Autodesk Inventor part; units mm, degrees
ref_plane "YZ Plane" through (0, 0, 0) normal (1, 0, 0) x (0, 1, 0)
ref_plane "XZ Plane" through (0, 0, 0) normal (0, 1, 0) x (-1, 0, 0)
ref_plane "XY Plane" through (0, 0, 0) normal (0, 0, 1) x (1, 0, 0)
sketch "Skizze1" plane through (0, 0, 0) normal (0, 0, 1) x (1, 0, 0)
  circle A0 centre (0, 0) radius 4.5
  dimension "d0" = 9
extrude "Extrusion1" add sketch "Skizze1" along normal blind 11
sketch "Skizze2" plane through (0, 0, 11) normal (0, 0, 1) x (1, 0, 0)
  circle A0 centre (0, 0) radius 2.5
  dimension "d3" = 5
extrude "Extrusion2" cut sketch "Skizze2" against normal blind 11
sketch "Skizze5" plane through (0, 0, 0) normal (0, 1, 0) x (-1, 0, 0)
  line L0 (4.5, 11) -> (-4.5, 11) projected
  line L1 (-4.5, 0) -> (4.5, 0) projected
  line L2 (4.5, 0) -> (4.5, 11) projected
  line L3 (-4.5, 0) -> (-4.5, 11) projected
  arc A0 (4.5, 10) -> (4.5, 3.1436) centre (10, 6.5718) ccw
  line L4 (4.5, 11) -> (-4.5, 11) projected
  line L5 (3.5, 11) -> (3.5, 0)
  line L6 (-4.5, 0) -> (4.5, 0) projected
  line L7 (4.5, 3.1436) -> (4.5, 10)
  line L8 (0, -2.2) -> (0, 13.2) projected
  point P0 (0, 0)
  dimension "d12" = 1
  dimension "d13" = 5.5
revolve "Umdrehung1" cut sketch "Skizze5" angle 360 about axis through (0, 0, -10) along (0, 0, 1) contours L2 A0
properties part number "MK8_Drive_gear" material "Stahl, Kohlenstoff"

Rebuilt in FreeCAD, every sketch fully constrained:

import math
import FreeCAD as App
import Part
import Sketcher
Q = App.Units.Quantity

doc = App.newDocument("Part")
body = doc.addObject("PartDesign::Body", "Body")

# Sketch on XY plane
sketch1 = body.newObject("Sketcher::SketchObject", "Sketch")
sketch1.AttachmentSupport = (doc.getObject("XY_Plane"), [""])
sketch1.MapMode = "FlatFace"
sketch1.addGeometry(Part.Circle(App.Vector(0, 0, 0), App.Vector(0, 0, 1), 4.5), False)
sketch1.addConstraint([
    Sketcher.Constraint("Coincident", 0, 3, -1, 1),
    Sketcher.Constraint("Diameter", 0, Q("9 mm")),
])
pad1 = body.newObject("PartDesign::Pad", "Pad")
pad1.Profile = sketch1
pad1.Length = 11

# Sketch on XY plane
sketch2 = body.newObject("Sketcher::SketchObject", "Sketch001")
sketch2.AttachmentSupport = (doc.getObject("XY_Plane"), [""])
sketch2.MapMode = "FlatFace"
sketch2.AttachmentOffset = App.Placement(App.Vector(0, 0, 11), App.Rotation())
sketch2.addGeometry(Part.Circle(App.Vector(0, 0, 0), App.Vector(0, 0, 1), 2.5), False)
sketch2.addConstraint([
    Sketcher.Constraint("Coincident", 0, 3, -1, 1),
    Sketcher.Constraint("Diameter", 0, Q("5 mm")),
])
pocket1 = body.newObject("PartDesign::Pocket", "Pocket")
pocket1.Profile = sketch2
pocket1.Length = 11

# Sketch on XZ plane
sketch3 = body.newObject("Sketcher::SketchObject", "Sketch002")
sketch3.AttachmentSupport = (doc.getObject("XZ_Plane"), [""])
sketch3.MapMode = "FlatFace"
sketch3.addGeometry([
    Part.LineSegment(App.Vector(-4, 3, 0), App.Vector(-4, 10, 0)),
    Part.ArcOfCircle(Part.Circle(App.Vector(-10, 7, 0), App.Vector(0, 0, 1), 6), math.radians(-32), math.radians(32)),
], False)
sketch3.addConstraint([
    Sketcher.Constraint("Coincident", 0, 1, 1, 1),
    Sketcher.Constraint("Coincident", 1, 2, 0, 2),
    Sketcher.Constraint("Vertical", 0),
    Sketcher.Constraint("DistanceX", 1, 3, 0, 1, Q("5.5 mm")),
    Sketcher.Constraint("DistanceX", 1, 3, -1, 1, Q("10 mm")),
    Sketcher.Constraint("DistanceY", -1, 1, 1, 2, Q("10 mm")),
    Sketcher.Constraint("Radius", 1, Q("6.481 mm")),
])
groove = body.newObject("PartDesign::Groove", "Groove")
groove.Profile = sketch3
groove.ReferenceAxis = (sketch3, ["V_Axis"])
groove.Angle = 360

doc.recompute()
